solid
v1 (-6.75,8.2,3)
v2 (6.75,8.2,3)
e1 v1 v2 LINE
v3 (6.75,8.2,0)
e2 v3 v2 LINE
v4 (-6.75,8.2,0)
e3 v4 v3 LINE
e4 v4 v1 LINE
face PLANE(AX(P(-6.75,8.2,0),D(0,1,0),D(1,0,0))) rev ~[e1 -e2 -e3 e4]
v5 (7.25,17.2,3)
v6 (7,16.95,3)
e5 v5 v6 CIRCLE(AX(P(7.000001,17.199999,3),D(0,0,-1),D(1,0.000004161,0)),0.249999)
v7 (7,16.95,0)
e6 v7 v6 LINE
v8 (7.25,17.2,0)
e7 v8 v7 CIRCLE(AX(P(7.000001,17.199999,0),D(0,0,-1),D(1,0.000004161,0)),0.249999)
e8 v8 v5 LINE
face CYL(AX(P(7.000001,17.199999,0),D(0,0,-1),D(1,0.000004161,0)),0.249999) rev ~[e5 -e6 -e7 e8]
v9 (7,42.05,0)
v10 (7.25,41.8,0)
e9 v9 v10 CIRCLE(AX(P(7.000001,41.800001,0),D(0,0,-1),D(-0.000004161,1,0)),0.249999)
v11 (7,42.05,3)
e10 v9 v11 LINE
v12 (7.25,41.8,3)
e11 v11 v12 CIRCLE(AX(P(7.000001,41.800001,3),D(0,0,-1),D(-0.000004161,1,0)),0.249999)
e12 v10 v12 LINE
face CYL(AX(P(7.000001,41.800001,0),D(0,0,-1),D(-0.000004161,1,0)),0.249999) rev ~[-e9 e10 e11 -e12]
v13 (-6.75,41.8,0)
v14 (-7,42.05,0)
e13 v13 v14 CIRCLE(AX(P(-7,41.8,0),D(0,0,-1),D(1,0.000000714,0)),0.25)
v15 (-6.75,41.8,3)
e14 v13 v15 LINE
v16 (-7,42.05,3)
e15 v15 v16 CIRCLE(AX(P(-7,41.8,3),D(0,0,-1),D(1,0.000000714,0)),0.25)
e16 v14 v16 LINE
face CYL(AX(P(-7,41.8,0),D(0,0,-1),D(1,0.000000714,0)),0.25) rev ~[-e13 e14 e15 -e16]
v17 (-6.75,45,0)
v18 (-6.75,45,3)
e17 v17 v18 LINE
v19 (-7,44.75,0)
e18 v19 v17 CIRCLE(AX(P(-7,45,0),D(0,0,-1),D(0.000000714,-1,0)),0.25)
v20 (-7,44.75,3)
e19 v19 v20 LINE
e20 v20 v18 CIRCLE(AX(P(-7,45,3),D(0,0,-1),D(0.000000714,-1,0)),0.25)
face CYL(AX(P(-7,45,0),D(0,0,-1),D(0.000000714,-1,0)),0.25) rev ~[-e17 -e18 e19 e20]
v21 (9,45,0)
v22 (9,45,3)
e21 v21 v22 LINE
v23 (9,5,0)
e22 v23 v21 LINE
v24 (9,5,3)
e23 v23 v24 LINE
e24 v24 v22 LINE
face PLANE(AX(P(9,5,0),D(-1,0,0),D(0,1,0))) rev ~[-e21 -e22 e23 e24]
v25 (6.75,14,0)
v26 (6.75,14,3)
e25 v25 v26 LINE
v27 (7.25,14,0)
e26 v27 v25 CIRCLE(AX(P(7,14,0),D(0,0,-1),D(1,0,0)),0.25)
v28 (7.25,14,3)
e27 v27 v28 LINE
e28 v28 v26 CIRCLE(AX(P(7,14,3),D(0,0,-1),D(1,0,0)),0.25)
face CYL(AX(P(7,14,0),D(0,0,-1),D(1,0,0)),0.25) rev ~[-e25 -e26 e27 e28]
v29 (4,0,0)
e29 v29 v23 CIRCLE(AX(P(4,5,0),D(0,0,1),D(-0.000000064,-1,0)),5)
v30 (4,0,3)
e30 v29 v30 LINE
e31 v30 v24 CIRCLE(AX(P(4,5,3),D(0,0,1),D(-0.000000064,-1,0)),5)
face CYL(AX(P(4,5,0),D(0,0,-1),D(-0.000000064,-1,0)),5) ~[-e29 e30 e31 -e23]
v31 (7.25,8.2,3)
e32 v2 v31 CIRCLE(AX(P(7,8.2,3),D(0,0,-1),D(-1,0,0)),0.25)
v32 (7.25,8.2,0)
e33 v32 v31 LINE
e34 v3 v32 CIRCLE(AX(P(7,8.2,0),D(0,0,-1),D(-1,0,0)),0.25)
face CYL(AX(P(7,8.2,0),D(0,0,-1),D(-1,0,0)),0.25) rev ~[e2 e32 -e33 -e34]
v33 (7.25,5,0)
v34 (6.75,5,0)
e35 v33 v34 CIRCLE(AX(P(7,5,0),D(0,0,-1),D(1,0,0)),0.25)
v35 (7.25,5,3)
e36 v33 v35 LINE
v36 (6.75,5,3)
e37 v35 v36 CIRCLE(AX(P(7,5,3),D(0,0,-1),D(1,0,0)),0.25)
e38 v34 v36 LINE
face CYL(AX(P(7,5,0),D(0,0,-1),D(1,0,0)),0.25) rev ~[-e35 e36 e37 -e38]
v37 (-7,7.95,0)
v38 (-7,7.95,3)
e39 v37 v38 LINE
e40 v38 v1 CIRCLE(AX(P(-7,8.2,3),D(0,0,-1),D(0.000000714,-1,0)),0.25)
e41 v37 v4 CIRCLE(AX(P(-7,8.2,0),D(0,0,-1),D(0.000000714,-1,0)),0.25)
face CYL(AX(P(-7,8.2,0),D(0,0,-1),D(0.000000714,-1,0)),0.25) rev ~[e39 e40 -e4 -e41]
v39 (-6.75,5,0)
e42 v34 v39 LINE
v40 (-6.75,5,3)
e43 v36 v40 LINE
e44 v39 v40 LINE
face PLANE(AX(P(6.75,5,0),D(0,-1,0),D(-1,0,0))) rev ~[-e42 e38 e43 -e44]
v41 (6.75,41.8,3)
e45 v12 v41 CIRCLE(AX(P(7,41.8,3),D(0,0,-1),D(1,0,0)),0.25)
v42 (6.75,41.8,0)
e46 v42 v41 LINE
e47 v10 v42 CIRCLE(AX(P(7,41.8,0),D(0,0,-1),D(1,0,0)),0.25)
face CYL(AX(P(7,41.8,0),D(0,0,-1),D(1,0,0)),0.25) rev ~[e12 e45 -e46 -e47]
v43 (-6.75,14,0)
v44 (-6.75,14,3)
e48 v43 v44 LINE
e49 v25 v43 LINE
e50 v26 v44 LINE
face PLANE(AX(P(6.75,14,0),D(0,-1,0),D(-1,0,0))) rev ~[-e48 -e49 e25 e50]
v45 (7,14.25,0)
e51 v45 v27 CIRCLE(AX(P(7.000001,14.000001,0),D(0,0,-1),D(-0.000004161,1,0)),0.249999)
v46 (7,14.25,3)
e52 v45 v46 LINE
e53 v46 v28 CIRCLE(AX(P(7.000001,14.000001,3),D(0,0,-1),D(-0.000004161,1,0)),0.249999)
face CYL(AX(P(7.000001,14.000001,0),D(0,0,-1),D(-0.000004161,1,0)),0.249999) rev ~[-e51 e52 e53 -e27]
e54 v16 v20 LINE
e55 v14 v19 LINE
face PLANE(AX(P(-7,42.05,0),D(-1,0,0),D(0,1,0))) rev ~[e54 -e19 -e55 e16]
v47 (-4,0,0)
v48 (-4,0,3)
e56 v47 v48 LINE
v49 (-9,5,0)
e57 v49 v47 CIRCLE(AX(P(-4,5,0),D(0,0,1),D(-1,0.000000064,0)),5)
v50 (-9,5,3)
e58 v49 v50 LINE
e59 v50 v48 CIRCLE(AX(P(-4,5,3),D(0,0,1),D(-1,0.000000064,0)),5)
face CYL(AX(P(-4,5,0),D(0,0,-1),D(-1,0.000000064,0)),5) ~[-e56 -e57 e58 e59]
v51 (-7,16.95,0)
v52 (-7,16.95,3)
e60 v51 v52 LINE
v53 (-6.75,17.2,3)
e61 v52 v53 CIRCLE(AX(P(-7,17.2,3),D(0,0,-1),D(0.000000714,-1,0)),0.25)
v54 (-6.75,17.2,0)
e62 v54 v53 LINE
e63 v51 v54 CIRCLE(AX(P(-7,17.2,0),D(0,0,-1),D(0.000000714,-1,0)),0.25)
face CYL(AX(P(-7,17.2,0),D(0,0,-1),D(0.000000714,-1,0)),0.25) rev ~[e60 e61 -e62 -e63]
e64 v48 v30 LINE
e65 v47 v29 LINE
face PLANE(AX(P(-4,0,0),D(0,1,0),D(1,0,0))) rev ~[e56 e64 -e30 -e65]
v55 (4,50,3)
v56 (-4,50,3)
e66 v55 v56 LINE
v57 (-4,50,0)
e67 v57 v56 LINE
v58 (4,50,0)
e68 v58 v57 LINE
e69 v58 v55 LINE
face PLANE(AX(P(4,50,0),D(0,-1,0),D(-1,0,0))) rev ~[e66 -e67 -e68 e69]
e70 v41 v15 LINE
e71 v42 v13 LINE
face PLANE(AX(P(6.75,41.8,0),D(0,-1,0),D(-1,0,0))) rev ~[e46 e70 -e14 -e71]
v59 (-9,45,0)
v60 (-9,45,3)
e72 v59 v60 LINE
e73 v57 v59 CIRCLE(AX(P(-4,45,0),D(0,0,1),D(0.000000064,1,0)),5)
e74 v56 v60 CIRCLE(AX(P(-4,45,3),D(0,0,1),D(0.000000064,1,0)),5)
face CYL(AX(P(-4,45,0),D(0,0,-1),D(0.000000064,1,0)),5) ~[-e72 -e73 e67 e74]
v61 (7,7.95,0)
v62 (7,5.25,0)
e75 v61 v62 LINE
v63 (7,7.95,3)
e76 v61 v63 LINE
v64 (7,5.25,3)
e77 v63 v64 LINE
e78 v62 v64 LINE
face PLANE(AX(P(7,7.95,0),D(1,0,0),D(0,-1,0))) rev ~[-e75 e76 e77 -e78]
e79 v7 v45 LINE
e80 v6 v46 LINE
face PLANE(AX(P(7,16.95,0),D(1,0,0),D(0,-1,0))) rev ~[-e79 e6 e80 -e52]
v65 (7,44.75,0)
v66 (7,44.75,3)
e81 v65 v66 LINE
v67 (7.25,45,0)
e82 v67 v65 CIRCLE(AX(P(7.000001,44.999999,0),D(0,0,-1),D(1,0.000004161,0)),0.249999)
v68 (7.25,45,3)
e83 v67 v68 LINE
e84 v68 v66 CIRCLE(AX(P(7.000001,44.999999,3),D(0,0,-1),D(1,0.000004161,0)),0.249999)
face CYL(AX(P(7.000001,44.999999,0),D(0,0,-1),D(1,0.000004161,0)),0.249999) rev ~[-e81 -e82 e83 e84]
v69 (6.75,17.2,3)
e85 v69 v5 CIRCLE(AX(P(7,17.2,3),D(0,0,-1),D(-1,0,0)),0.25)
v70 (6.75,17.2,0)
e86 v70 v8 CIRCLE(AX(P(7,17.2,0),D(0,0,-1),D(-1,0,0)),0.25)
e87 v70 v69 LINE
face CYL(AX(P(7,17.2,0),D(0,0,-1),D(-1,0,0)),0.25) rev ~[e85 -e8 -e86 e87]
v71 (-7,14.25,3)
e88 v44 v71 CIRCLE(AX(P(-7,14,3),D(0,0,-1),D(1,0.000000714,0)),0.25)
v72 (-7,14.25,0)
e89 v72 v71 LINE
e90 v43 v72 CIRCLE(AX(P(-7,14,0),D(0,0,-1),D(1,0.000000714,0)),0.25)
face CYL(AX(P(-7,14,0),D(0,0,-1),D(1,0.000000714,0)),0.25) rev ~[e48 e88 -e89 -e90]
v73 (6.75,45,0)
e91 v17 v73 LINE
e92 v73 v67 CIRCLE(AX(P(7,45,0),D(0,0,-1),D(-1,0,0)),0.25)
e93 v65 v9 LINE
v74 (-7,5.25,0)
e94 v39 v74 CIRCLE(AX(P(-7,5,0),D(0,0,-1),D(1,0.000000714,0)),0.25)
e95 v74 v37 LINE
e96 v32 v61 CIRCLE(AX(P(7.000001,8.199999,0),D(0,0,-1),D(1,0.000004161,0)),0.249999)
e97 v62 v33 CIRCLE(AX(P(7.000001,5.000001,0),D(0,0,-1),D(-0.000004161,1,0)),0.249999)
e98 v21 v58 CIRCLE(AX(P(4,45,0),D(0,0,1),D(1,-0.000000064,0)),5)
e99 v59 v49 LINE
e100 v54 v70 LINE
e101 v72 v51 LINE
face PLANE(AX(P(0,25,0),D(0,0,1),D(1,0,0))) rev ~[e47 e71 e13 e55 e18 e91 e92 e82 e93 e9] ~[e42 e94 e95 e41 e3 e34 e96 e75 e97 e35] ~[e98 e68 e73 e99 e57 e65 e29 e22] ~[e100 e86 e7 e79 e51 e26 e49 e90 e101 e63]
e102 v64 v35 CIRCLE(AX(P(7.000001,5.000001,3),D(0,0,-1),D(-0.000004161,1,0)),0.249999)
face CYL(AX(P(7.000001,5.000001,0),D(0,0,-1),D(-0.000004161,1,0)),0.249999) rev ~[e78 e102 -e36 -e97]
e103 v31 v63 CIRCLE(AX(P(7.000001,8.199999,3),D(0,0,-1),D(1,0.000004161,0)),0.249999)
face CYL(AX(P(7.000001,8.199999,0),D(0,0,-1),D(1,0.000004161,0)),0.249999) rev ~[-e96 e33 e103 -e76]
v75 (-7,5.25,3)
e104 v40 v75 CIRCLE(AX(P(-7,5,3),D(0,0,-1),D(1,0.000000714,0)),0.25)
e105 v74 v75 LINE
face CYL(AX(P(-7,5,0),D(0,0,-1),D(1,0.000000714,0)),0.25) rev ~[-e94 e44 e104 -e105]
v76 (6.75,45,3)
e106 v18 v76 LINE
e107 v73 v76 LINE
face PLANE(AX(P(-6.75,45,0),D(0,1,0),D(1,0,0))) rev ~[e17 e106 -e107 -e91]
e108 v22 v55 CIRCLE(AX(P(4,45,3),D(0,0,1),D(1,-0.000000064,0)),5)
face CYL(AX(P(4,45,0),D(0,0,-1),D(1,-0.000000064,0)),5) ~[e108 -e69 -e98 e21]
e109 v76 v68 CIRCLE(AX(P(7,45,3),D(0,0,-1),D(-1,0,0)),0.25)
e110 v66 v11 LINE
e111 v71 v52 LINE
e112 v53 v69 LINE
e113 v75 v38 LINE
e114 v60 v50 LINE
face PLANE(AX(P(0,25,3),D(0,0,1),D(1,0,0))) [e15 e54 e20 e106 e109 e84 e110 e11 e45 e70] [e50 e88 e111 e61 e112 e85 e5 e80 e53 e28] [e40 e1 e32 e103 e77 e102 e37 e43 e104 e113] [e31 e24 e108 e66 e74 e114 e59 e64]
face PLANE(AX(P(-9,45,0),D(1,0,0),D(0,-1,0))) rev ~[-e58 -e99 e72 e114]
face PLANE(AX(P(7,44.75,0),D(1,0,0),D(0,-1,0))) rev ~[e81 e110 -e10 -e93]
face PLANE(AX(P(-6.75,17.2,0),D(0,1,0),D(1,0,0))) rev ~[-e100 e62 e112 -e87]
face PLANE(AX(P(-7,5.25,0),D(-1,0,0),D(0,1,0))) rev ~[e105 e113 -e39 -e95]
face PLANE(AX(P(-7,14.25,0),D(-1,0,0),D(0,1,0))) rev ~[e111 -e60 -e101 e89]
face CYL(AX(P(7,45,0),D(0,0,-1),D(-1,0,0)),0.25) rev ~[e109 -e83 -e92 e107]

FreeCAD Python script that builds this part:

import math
import FreeCAD as App
import Part
import Sketcher

V = App.Vector

doc = App.newDocument("Part")
body = doc.addObject("PartDesign::Body", "Body")

# Sketch on XY plane
sketch1 = body.newObject("Sketcher::SketchObject", "Sketch")
sketch1.AttachmentSupport = (doc.getObject("XY_Plane"), [""])
sketch1.MapMode = "FlatFace"
sketch1.addGeometry([
    Part.LineSegment(V(4, 50, 0), V(-4, 50, 0)),  # 0
    Part.ArcOfCircle(Part.Circle(V(-4, 45, 0), V(0, 0, 1), 5), math.radians(90), math.radians(180)),  # 1
    Part.LineSegment(V(-9, 45, 0), V(-9, 5, 0)),  # 2
    Part.ArcOfCircle(Part.Circle(V(-4, 5, 0), V(0, 0, 1), 5), math.radians(180), math.radians(270)),  # 3
    Part.LineSegment(V(-4, 0, 0), V(4, 0, 0)),  # 4
    Part.ArcOfCircle(Part.Circle(V(4, 5, 0), V(0, 0, 1), 5), math.radians(-90), math.radians(0)),  # 5
    Part.LineSegment(V(9, 5, 0), V(9, 45, 0)),  # 6
    Part.ArcOfCircle(Part.Circle(V(4, 45, 0), V(0, 0, 1), 5), math.radians(0), math.radians(90)),  # 7
    Part.LineSegment(V(-7, 5.25, 0), V(-7, 7.95, 0)),  # 8
    Part.ArcOfCircle(Part.Circle(V(-7, 8.2, 0), V(0, 0, 1), 0.25), math.radians(0), math.radians(270)),  # 9
    Part.LineSegment(V(-6.75, 8.2, 0), V(6.75, 8.2, 0)),  # 10
    Part.ArcOfCircle(Part.Circle(V(7, 8.2, 0), V(0, 0, 1), 0.25), math.radians(0), math.radians(180)),  # 11
    Part.ArcOfCircle(Part.Circle(V(7, 8.2, 0), V(0, 0, 1), 0.25), math.radians(-90), math.radians(0)),  # 12
    Part.LineSegment(V(7, 7.95, 0), V(7, 5.25, 0)),  # 13
    Part.ArcOfCircle(Part.Circle(V(7, 5, 0), V(0, 0, 1), 0.25), math.radians(0), math.radians(90)),  # 14
    Part.ArcOfCircle(Part.Circle(V(7, 5, 0), V(0, 0, 1), 0.25), math.radians(180), math.radians(360)),  # 15
    Part.LineSegment(V(6.75, 5, 0), V(-6.75, 5, 0)),  # 16
    Part.ArcOfCircle(Part.Circle(V(-7, 5, 0), V(0, 0, 1), 0.25), math.radians(90), math.radians(360)),  # 17
    Part.LineSegment(V(-7, 14.25, 0), V(-7, 16.95, 0)),  # 18
    Part.ArcOfCircle(Part.Circle(V(-7, 17.2, 0), V(0, 0, 1), 0.25), math.radians(0), math.radians(270)),  # 19
    Part.LineSegment(V(-6.75, 17.2, 0), V(6.75, 17.2, 0)),  # 20
    Part.ArcOfCircle(Part.Circle(V(7, 17.2, 0), V(0, 0, 1), 0.25), math.radians(0), math.radians(180)),  # 21
    Part.ArcOfCircle(Part.Circle(V(7, 17.2, 0), V(0, 0, 1), 0.25), math.radians(-90), math.radians(0)),  # 22
    Part.LineSegment(V(7, 16.95, 0), V(7, 14.25, 0)),  # 23
    Part.ArcOfCircle(Part.Circle(V(7, 14, 0), V(0, 0, 1), 0.25), math.radians(0), math.radians(90)),  # 24
    Part.ArcOfCircle(Part.Circle(V(7, 14, 0), V(0, 0, 1), 0.25), math.radians(180), math.radians(360)),  # 25
    Part.LineSegment(V(6.75, 14, 0), V(-6.75, 14, 0)),  # 26
    Part.ArcOfCircle(Part.Circle(V(-7, 14, 0), V(0, 0, 1), 0.25), math.radians(90), math.radians(360)),  # 27
    Part.LineSegment(V(-7, 42.05, 0), V(-7, 44.75, 0)),  # 28
    Part.ArcOfCircle(Part.Circle(V(-7, 45, 0), V(0, 0, 1), 0.25), math.radians(0), math.radians(270)),  # 29
    Part.LineSegment(V(-6.75, 45, 0), V(6.75, 45, 0)),  # 30
    Part.ArcOfCircle(Part.Circle(V(7, 45, 0), V(0, 0, 1), 0.25), math.radians(0), math.radians(180)),  # 31
    Part.ArcOfCircle(Part.Circle(V(7, 45, 0), V(0, 0, 1), 0.25), math.radians(-90), math.radians(0)),  # 32
    Part.LineSegment(V(7, 44.75, 0), V(7, 42.05, 0)),  # 33
    Part.ArcOfCircle(Part.Circle(V(7, 41.8, 0), V(0, 0, 1), 0.25), math.radians(0), math.radians(90)),  # 34
    Part.ArcOfCircle(Part.Circle(V(7, 41.8, 0), V(0, 0, 1), 0.25), math.radians(180), math.radians(360)),  # 35
    Part.LineSegment(V(6.75, 41.8, 0), V(-6.75, 41.8, 0)),  # 36
    Part.ArcOfCircle(Part.Circle(V(-7, 41.8, 0), V(0, 0, 1), 0.25), math.radians(90), math.radians(360)),  # 37
], False)
sketch1.addConstraint([
    Sketcher.Constraint("Tangent", 0, 2, 1, 1),
    Sketcher.Constraint("Tangent", 1, 2, 2, 1),
    Sketcher.Constraint("Tangent", 2, 2, 3, 1),
    Sketcher.Constraint("Tangent", 3, 2, 4, 1),
    Sketcher.Constraint("Tangent", 4, 2, 5, 1),
    Sketcher.Constraint("Tangent", 5, 2, 6, 1),
    Sketcher.Constraint("Tangent", 6, 2, 7, 1),
    Sketcher.Constraint("Tangent", 7, 2, 0, 1),
    Sketcher.Constraint("Coincident", 8, 2, 9, 2),
    Sketcher.Constraint("Coincident", 9, 1, 10, 1),
    Sketcher.Constraint("Coincident", 10, 2, 11, 2),
    Sketcher.Constraint("Coincident", 11, 1, 12, 2),
    Sketcher.Constraint("Coincident", 12, 1, 13, 1),
    Sketcher.Constraint("Coincident", 13, 2, 14, 2),
    Sketcher.Constraint("Coincident", 14, 1, 15, 2),
    Sketcher.Constraint("Coincident", 15, 1, 16, 1),
    Sketcher.Constraint("Coincident", 16, 2, 17, 2),
    Sketcher.Constraint("Coincident", 17, 1, 8, 1),
    Sketcher.Constraint("Coincident", 18, 2, 19, 2),
    Sketcher.Constraint("Coincident", 19, 1, 20, 1),
    Sketcher.Constraint("Coincident", 20, 2, 21, 2),
    Sketcher.Constraint("Coincident", 21, 1, 22, 2),
    Sketcher.Constraint("Coincident", 22, 1, 23, 1),
    Sketcher.Constraint("Coincident", 23, 2, 24, 2),
    Sketcher.Constraint("Coincident", 24, 1, 25, 2),
    Sketcher.Constraint("Coincident", 25, 1, 26, 1),
    Sketcher.Constraint("Coincident", 26, 2, 27, 2),
    Sketcher.Constraint("Coincident", 27, 1, 18, 1),
    Sketcher.Constraint("Coincident", 28, 2, 29, 2),
    Sketcher.Constraint("Coincident", 29, 1, 30, 1),
    Sketcher.Constraint("Coincident", 30, 2, 31, 2),
    Sketcher.Constraint("Coincident", 31, 1, 32, 2),
    Sketcher.Constraint("Coincident", 32, 1, 33, 1),
    Sketcher.Constraint("Coincident", 33, 2, 34, 2),
    Sketcher.Constraint("Coincident", 34, 1, 35, 2),
    Sketcher.Constraint("Coincident", 35, 1, 36, 1),
    Sketcher.Constraint("Coincident", 36, 2, 37, 2),
    Sketcher.Constraint("Coincident", 37, 1, 28, 1),
    Sketcher.Constraint("Horizontal", 0),
    Sketcher.Constraint("Vertical", 2),
    Sketcher.Constraint("Horizontal", 4),
    Sketcher.Constraint("Vertical", 6),
    Sketcher.Constraint("Vertical", 8),
    Sketcher.Constraint("Horizontal", 10),
    Sketcher.Constraint("Vertical", 13),
    Sketcher.Constraint("Horizontal", 16),
    Sketcher.Constraint("Vertical", 18),
    Sketcher.Constraint("Horizontal", 20),
    Sketcher.Constraint("Vertical", 23),
    Sketcher.Constraint("Horizontal", 26),
    Sketcher.Constraint("Vertical", 28),
    Sketcher.Constraint("Horizontal", 30),
    Sketcher.Constraint("Vertical", 33),
    Sketcher.Constraint("Horizontal", 36),
    Sketcher.Constraint("Coincident", 12, 3, 11, 3),
    Sketcher.Constraint("Coincident", 15, 3, 14, 3),
    Sketcher.Constraint("Coincident", 22, 3, 21, 3),
    Sketcher.Constraint("Coincident", 25, 3, 24, 3),
    Sketcher.Constraint("Coincident", 32, 3, 31, 3),
    Sketcher.Constraint("Coincident", 35, 3, 34, 3),
    Sketcher.Constraint("Equal", 1, 3),
    Sketcher.Constraint("Equal", 3, 5),
    Sketcher.Constraint("Equal", 5, 7),
    Sketcher.Constraint("Equal", 9, 11),
    Sketcher.Constraint("Equal", 12, 14),
    Sketcher.Constraint("Equal", 15, 17),
    Sketcher.Constraint("Equal", 17, 19),
    Sketcher.Constraint("Equal", 19, 21),
    Sketcher.Constraint("Equal", 22, 24),
    Sketcher.Constraint("Equal", 25, 27),
    Sketcher.Constraint("Equal", 27, 29),
    Sketcher.Constraint("Equal", 29, 31),
    Sketcher.Constraint("Equal", 32, 34),
    Sketcher.Constraint("Equal", 35, 37),
    Sketcher.Constraint("Symmetric", 3, 2, 4, 2, -1, 1),
    Sketcher.Constraint("Symmetric", 9, 3, 11, 3, -2),
    Sketcher.Constraint("Symmetric", 14, 3, 17, 3, -2),
    Sketcher.Constraint("Symmetric", 19, 3, 21, 3, -2),
    Sketcher.Constraint("Symmetric", 24, 3, 27, 3, -2),
    Sketcher.Constraint("Symmetric", 29, 3, 31, 3, -2),
    Sketcher.Constraint("Symmetric", 34, 3, 37, 3, -2),
    Sketcher.Constraint("Horizontal", 5, 3, 14, 3),
    Sketcher.Constraint("Horizontal", 7, 3, 29, 3),
    Sketcher.Constraint("Horizontal", 12, 3, 9, 1),
    Sketcher.Constraint("Horizontal", 10, 2, 11, 1),
    Sketcher.Constraint("Horizontal", 5, 2, 14, 1),
    Sketcher.Constraint("Horizontal", 14, 1, 15, 1),
    Sketcher.Constraint("Horizontal", 22, 3, 19, 1),
    Sketcher.Constraint("Horizontal", 20, 2, 21, 1),
    Sketcher.Constraint("Horizontal", 27, 3, 24, 1),
    Sketcher.Constraint("Horizontal", 24, 1, 25, 1),
    Sketcher.Constraint("Horizontal", 6, 2, 29, 1),
    Sketcher.Constraint("Horizontal", 30, 2, 31, 1),
    Sketcher.Constraint("Horizontal", 37, 3, 34, 1),
    Sketcher.Constraint("Horizontal", 34, 1, 35, 1),
    Sketcher.Constraint("Vertical", 12, 3, 14, 3),
    Sketcher.Constraint("Vertical", 17, 3, 19, 3),
    Sketcher.Constraint("Vertical", 22, 3, 24, 3),
    Sketcher.Constraint("Vertical", 27, 3, 29, 3),
    Sketcher.Constraint("Vertical", 32, 3, 34, 3),
    Sketcher.Constraint("Vertical", 37, 3, 8, 2),
    Sketcher.Constraint("Vertical", 35, 3, 12, 1),
    Sketcher.Constraint("Vertical", 17, 1, 18, 2),
    Sketcher.Constraint("Vertical", 13, 2, 22, 1),
    Sketcher.Constraint("Vertical", 27, 1, 28, 2),
    Sketcher.Constraint("Vertical", 23, 2, 32, 1),
    Sketcher.Constraint("Equal", 13, 18),
    Sketcher.Constraint("Equal", 23, 28),
    Sketcher.Constraint("Radius", 1, 5.0),
    Sketcher.Constraint("DistanceX", 0, 2, 0, 1, 8.0),
    Sketcher.Constraint("DistanceY", 2, 2, 2, 1, 40.0),
    Sketcher.Constraint("Radius", 9, 0.25),
    Sketcher.Constraint("DistanceX", 10, 1, 10, 2, 13.5),
    Sketcher.Constraint("DistanceY", 8, 1, 8, 2, 2.7),
    Sketcher.Constraint("DistanceY", -1, 1, 24, 3, 14.000001),
])
pad1 = body.newObject("PartDesign::Pad", "Pad")
pad1.Profile = sketch1
pad1.Length = 3

doc.recompute()
